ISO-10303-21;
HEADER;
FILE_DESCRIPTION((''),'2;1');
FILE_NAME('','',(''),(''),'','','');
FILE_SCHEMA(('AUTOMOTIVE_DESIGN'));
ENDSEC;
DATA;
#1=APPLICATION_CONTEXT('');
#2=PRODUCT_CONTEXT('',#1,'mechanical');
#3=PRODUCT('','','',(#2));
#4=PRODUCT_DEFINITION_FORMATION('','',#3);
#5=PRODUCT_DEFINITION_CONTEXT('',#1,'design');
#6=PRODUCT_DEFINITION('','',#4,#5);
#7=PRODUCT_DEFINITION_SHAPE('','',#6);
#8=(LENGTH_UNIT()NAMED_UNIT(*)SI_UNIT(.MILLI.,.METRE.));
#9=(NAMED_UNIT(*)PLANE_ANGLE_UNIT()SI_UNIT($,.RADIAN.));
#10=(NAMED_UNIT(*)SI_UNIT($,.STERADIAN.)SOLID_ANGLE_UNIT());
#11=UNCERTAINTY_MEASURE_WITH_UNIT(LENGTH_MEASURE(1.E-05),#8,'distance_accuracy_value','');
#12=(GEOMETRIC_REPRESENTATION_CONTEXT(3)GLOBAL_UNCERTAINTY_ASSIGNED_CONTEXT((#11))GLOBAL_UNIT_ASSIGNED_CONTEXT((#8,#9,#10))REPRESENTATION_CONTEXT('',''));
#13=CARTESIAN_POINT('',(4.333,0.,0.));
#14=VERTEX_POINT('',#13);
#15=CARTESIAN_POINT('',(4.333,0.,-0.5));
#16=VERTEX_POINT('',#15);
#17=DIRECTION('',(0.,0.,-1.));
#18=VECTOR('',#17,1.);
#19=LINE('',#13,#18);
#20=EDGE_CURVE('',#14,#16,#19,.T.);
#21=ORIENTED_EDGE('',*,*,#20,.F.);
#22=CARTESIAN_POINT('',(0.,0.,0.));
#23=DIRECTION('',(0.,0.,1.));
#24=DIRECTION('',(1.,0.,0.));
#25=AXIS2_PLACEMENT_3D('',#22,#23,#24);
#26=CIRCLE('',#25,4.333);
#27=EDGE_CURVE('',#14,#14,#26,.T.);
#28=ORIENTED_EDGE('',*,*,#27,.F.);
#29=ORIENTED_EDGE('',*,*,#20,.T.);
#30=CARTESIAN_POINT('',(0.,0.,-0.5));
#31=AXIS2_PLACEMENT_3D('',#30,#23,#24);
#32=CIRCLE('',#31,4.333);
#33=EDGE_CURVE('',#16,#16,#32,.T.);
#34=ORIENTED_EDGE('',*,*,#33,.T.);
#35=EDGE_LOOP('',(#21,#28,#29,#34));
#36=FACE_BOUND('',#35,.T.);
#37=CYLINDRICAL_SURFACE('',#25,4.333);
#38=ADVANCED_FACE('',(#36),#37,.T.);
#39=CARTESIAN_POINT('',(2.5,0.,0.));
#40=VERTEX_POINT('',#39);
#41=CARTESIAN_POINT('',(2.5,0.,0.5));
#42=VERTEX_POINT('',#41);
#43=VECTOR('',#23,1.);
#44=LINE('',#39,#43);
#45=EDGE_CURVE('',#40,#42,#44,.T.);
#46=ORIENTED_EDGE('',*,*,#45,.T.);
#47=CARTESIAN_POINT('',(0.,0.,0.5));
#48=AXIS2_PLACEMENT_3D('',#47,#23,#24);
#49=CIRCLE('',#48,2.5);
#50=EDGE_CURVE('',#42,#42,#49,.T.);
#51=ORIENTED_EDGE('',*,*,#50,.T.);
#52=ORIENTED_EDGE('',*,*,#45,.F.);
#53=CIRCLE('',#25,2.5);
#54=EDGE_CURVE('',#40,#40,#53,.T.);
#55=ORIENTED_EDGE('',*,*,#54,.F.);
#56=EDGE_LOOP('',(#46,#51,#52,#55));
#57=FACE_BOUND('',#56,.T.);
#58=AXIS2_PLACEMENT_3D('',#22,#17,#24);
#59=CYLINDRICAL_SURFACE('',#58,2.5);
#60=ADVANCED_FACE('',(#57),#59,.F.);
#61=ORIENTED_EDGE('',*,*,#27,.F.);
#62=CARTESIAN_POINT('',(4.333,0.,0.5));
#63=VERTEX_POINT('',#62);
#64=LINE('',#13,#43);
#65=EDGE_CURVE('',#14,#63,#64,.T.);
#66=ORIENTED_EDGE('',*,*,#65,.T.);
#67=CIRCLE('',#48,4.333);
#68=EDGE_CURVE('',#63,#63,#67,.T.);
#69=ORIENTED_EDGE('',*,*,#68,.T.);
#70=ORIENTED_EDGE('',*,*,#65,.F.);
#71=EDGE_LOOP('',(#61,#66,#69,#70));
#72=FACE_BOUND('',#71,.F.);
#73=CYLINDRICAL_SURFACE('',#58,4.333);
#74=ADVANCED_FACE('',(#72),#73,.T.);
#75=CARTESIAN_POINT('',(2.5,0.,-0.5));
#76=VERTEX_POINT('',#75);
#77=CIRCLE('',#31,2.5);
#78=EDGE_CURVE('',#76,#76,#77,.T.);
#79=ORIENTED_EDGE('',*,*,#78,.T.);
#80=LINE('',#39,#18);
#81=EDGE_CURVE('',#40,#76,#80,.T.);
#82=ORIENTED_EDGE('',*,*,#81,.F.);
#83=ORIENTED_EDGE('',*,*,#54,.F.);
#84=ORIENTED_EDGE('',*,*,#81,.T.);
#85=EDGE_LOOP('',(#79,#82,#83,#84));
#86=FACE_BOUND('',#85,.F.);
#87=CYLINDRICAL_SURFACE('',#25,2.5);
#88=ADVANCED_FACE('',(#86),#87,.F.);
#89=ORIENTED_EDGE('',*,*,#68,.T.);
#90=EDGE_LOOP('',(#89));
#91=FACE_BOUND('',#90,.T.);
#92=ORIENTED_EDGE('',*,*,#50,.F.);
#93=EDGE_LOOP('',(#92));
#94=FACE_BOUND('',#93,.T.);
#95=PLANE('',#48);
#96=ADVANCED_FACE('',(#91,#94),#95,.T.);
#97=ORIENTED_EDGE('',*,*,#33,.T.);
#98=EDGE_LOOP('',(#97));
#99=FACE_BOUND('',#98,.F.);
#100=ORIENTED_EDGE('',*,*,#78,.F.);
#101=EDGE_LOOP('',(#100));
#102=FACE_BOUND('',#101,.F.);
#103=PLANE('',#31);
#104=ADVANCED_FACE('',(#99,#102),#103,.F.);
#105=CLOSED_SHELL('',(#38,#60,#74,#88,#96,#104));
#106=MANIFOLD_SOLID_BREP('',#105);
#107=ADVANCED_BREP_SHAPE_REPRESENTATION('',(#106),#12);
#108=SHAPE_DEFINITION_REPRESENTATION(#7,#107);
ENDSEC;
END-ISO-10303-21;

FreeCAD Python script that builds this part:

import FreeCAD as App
import Part
import Sketcher
from FreeCAD import Vector

doc = App.newDocument("Part")
params = doc.addObject("Spreadsheet::Sheet", "Params")
for row, (alias, value) in enumerate([
    ("sketch1_diameter", "5 mm"),
    ("pad1_length", "1 mm"),
], start=1):
    params.set(f"A{row}", alias)
    params.set(f"B{row}", "=" + value)
    params.setAlias(f"B{row}", alias)

body = doc.addObject("PartDesign::Body", "Body")

# Sketch on XY plane
sketch1 = doc.addObject("Sketcher::SketchObject", "Sketch")
body.addObject(sketch1)
sketch1.AttachmentSupport = (doc.XY_Plane, [""])
sketch1.MapMode = "FlatFace"
sketch1.addGeometry([
    Part.Circle(Vector(0, 0, 0), Vector(0, 0, 1), 4.333),
    Part.Circle(Vector(0, 0, 0), Vector(0, 0, 1), 2.5),
], False)
sketch1.addConstraint([
    Sketcher.Constraint("Coincident", 0, 3, -1, 1),
    Sketcher.Constraint("Coincident", 1, 3, -1, 1),
    Sketcher.Constraint("Diameter", 1, 5.0),
    Sketcher.Constraint("Diameter", 0, 8.666),
])
sketch1.setExpression("Constraints[2]", "Params.sketch1_diameter")
pad1 = doc.addObject("PartDesign::Pad", "Pad")
body.addObject(pad1)
pad1.Profile = sketch1
pad1.setExpression("Length", "Params.pad1_length")
pad1.Midplane = True

doc.recompute()
